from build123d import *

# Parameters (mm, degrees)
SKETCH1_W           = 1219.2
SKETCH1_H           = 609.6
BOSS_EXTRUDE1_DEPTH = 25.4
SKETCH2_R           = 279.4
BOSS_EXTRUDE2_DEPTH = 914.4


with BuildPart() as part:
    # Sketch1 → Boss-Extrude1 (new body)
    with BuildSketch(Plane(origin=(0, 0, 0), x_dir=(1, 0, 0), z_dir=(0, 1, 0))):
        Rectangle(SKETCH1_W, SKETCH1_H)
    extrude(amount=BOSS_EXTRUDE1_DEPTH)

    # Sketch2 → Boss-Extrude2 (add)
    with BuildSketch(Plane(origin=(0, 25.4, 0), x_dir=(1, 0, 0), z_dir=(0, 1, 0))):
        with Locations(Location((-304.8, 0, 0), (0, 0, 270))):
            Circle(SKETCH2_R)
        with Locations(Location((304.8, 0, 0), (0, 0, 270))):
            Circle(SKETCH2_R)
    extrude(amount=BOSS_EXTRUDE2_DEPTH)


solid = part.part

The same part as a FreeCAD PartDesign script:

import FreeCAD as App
import Part
import Sketcher
from FreeCAD import Vector
Q = App.Units.Quantity


def add_polygon(sketch, points):
    """Adds a closed chain of lines whose ends are joined by coincident constraints."""
    first, n = sketch.GeometryCount, len(points)
    for a, b in zip(points, points[1:] + points[:1]):
        sketch.addGeometry(Part.LineSegment(App.Vector(*a, 0), App.Vector(*b, 0)), False)
    for i in range(n):
        sketch.addConstraint(Sketcher.Constraint("Coincident", first + i, 2, first + (i + 1) % n, 1))

doc = App.newDocument("Part")
body = doc.addObject("PartDesign::Body", "Body")

sketch1 = body.newObject("Sketcher::SketchObject", "Sketch")
sketch1.AttachmentSupport = (doc.getObject("XZ_Plane"), [""])
sketch1.MapMode = "FlatFace"
add_polygon(sketch1, [(-609.6, -304.8), (-609.6, 304.8), (609.6, 304.8), (609.6, -304.8)])
sketch1.addConstraint([
    Sketcher.Constraint("Vertical", 0),
    Sketcher.Constraint("Horizontal", 1),
    Sketcher.Constraint("Vertical", 2),
    Sketcher.Constraint("Horizontal", 3),
    Sketcher.Constraint("Symmetric", 0, 2, 2, 2, -1, 1),
    Sketcher.Constraint("DistanceX", 1, 1, 1, 2, Q("48 in")),
    Sketcher.Constraint("DistanceY", 0, 1, 0, 2, Q("24 in")),
])
pad1 = body.newObject("PartDesign::Pad", "Pad")
pad1.Profile = sketch1
pad1.Length = Q("1 in")
pad1.Reversed = True

sketch2 = body.newObject("Sketcher::SketchObject", "Sketch001")
sketch2.AttachmentSupport = (doc.getObject("XZ_Plane"), [""])
sketch2.MapMode = "FlatFace"
sketch2.AttachmentOffset = App.Placement(Vector(0, 0, -1 * 25.4), App.Rotation())
sketch2.addGeometry([
    Part.Circle(Vector(-304.8, 0, 0), Vector(0, 0, 1), 279.4),
    Part.Circle(Vector(304.8, 0, 0), Vector(0, 0, 1), 279.4),
], False)
sketch2.addConstraint([
    Sketcher.Constraint("Equal", 0, 1),
    Sketcher.Constraint("Symmetric", 0, 3, 1, 3, -1, 1),
    Sketcher.Constraint("PointOnObject", 0, 3, -1),
    Sketcher.Constraint("Diameter", 0, Q("22 in")),
    Sketcher.Constraint("DistanceX", 0, 3, -1, 1, Q("12 in")),
])
pad2 = body.newObject("PartDesign::Pad", "Pad001")
pad2.Profile = sketch2
pad2.Length = Q("36 in")
pad2.Reversed = True

doc.recompute()
